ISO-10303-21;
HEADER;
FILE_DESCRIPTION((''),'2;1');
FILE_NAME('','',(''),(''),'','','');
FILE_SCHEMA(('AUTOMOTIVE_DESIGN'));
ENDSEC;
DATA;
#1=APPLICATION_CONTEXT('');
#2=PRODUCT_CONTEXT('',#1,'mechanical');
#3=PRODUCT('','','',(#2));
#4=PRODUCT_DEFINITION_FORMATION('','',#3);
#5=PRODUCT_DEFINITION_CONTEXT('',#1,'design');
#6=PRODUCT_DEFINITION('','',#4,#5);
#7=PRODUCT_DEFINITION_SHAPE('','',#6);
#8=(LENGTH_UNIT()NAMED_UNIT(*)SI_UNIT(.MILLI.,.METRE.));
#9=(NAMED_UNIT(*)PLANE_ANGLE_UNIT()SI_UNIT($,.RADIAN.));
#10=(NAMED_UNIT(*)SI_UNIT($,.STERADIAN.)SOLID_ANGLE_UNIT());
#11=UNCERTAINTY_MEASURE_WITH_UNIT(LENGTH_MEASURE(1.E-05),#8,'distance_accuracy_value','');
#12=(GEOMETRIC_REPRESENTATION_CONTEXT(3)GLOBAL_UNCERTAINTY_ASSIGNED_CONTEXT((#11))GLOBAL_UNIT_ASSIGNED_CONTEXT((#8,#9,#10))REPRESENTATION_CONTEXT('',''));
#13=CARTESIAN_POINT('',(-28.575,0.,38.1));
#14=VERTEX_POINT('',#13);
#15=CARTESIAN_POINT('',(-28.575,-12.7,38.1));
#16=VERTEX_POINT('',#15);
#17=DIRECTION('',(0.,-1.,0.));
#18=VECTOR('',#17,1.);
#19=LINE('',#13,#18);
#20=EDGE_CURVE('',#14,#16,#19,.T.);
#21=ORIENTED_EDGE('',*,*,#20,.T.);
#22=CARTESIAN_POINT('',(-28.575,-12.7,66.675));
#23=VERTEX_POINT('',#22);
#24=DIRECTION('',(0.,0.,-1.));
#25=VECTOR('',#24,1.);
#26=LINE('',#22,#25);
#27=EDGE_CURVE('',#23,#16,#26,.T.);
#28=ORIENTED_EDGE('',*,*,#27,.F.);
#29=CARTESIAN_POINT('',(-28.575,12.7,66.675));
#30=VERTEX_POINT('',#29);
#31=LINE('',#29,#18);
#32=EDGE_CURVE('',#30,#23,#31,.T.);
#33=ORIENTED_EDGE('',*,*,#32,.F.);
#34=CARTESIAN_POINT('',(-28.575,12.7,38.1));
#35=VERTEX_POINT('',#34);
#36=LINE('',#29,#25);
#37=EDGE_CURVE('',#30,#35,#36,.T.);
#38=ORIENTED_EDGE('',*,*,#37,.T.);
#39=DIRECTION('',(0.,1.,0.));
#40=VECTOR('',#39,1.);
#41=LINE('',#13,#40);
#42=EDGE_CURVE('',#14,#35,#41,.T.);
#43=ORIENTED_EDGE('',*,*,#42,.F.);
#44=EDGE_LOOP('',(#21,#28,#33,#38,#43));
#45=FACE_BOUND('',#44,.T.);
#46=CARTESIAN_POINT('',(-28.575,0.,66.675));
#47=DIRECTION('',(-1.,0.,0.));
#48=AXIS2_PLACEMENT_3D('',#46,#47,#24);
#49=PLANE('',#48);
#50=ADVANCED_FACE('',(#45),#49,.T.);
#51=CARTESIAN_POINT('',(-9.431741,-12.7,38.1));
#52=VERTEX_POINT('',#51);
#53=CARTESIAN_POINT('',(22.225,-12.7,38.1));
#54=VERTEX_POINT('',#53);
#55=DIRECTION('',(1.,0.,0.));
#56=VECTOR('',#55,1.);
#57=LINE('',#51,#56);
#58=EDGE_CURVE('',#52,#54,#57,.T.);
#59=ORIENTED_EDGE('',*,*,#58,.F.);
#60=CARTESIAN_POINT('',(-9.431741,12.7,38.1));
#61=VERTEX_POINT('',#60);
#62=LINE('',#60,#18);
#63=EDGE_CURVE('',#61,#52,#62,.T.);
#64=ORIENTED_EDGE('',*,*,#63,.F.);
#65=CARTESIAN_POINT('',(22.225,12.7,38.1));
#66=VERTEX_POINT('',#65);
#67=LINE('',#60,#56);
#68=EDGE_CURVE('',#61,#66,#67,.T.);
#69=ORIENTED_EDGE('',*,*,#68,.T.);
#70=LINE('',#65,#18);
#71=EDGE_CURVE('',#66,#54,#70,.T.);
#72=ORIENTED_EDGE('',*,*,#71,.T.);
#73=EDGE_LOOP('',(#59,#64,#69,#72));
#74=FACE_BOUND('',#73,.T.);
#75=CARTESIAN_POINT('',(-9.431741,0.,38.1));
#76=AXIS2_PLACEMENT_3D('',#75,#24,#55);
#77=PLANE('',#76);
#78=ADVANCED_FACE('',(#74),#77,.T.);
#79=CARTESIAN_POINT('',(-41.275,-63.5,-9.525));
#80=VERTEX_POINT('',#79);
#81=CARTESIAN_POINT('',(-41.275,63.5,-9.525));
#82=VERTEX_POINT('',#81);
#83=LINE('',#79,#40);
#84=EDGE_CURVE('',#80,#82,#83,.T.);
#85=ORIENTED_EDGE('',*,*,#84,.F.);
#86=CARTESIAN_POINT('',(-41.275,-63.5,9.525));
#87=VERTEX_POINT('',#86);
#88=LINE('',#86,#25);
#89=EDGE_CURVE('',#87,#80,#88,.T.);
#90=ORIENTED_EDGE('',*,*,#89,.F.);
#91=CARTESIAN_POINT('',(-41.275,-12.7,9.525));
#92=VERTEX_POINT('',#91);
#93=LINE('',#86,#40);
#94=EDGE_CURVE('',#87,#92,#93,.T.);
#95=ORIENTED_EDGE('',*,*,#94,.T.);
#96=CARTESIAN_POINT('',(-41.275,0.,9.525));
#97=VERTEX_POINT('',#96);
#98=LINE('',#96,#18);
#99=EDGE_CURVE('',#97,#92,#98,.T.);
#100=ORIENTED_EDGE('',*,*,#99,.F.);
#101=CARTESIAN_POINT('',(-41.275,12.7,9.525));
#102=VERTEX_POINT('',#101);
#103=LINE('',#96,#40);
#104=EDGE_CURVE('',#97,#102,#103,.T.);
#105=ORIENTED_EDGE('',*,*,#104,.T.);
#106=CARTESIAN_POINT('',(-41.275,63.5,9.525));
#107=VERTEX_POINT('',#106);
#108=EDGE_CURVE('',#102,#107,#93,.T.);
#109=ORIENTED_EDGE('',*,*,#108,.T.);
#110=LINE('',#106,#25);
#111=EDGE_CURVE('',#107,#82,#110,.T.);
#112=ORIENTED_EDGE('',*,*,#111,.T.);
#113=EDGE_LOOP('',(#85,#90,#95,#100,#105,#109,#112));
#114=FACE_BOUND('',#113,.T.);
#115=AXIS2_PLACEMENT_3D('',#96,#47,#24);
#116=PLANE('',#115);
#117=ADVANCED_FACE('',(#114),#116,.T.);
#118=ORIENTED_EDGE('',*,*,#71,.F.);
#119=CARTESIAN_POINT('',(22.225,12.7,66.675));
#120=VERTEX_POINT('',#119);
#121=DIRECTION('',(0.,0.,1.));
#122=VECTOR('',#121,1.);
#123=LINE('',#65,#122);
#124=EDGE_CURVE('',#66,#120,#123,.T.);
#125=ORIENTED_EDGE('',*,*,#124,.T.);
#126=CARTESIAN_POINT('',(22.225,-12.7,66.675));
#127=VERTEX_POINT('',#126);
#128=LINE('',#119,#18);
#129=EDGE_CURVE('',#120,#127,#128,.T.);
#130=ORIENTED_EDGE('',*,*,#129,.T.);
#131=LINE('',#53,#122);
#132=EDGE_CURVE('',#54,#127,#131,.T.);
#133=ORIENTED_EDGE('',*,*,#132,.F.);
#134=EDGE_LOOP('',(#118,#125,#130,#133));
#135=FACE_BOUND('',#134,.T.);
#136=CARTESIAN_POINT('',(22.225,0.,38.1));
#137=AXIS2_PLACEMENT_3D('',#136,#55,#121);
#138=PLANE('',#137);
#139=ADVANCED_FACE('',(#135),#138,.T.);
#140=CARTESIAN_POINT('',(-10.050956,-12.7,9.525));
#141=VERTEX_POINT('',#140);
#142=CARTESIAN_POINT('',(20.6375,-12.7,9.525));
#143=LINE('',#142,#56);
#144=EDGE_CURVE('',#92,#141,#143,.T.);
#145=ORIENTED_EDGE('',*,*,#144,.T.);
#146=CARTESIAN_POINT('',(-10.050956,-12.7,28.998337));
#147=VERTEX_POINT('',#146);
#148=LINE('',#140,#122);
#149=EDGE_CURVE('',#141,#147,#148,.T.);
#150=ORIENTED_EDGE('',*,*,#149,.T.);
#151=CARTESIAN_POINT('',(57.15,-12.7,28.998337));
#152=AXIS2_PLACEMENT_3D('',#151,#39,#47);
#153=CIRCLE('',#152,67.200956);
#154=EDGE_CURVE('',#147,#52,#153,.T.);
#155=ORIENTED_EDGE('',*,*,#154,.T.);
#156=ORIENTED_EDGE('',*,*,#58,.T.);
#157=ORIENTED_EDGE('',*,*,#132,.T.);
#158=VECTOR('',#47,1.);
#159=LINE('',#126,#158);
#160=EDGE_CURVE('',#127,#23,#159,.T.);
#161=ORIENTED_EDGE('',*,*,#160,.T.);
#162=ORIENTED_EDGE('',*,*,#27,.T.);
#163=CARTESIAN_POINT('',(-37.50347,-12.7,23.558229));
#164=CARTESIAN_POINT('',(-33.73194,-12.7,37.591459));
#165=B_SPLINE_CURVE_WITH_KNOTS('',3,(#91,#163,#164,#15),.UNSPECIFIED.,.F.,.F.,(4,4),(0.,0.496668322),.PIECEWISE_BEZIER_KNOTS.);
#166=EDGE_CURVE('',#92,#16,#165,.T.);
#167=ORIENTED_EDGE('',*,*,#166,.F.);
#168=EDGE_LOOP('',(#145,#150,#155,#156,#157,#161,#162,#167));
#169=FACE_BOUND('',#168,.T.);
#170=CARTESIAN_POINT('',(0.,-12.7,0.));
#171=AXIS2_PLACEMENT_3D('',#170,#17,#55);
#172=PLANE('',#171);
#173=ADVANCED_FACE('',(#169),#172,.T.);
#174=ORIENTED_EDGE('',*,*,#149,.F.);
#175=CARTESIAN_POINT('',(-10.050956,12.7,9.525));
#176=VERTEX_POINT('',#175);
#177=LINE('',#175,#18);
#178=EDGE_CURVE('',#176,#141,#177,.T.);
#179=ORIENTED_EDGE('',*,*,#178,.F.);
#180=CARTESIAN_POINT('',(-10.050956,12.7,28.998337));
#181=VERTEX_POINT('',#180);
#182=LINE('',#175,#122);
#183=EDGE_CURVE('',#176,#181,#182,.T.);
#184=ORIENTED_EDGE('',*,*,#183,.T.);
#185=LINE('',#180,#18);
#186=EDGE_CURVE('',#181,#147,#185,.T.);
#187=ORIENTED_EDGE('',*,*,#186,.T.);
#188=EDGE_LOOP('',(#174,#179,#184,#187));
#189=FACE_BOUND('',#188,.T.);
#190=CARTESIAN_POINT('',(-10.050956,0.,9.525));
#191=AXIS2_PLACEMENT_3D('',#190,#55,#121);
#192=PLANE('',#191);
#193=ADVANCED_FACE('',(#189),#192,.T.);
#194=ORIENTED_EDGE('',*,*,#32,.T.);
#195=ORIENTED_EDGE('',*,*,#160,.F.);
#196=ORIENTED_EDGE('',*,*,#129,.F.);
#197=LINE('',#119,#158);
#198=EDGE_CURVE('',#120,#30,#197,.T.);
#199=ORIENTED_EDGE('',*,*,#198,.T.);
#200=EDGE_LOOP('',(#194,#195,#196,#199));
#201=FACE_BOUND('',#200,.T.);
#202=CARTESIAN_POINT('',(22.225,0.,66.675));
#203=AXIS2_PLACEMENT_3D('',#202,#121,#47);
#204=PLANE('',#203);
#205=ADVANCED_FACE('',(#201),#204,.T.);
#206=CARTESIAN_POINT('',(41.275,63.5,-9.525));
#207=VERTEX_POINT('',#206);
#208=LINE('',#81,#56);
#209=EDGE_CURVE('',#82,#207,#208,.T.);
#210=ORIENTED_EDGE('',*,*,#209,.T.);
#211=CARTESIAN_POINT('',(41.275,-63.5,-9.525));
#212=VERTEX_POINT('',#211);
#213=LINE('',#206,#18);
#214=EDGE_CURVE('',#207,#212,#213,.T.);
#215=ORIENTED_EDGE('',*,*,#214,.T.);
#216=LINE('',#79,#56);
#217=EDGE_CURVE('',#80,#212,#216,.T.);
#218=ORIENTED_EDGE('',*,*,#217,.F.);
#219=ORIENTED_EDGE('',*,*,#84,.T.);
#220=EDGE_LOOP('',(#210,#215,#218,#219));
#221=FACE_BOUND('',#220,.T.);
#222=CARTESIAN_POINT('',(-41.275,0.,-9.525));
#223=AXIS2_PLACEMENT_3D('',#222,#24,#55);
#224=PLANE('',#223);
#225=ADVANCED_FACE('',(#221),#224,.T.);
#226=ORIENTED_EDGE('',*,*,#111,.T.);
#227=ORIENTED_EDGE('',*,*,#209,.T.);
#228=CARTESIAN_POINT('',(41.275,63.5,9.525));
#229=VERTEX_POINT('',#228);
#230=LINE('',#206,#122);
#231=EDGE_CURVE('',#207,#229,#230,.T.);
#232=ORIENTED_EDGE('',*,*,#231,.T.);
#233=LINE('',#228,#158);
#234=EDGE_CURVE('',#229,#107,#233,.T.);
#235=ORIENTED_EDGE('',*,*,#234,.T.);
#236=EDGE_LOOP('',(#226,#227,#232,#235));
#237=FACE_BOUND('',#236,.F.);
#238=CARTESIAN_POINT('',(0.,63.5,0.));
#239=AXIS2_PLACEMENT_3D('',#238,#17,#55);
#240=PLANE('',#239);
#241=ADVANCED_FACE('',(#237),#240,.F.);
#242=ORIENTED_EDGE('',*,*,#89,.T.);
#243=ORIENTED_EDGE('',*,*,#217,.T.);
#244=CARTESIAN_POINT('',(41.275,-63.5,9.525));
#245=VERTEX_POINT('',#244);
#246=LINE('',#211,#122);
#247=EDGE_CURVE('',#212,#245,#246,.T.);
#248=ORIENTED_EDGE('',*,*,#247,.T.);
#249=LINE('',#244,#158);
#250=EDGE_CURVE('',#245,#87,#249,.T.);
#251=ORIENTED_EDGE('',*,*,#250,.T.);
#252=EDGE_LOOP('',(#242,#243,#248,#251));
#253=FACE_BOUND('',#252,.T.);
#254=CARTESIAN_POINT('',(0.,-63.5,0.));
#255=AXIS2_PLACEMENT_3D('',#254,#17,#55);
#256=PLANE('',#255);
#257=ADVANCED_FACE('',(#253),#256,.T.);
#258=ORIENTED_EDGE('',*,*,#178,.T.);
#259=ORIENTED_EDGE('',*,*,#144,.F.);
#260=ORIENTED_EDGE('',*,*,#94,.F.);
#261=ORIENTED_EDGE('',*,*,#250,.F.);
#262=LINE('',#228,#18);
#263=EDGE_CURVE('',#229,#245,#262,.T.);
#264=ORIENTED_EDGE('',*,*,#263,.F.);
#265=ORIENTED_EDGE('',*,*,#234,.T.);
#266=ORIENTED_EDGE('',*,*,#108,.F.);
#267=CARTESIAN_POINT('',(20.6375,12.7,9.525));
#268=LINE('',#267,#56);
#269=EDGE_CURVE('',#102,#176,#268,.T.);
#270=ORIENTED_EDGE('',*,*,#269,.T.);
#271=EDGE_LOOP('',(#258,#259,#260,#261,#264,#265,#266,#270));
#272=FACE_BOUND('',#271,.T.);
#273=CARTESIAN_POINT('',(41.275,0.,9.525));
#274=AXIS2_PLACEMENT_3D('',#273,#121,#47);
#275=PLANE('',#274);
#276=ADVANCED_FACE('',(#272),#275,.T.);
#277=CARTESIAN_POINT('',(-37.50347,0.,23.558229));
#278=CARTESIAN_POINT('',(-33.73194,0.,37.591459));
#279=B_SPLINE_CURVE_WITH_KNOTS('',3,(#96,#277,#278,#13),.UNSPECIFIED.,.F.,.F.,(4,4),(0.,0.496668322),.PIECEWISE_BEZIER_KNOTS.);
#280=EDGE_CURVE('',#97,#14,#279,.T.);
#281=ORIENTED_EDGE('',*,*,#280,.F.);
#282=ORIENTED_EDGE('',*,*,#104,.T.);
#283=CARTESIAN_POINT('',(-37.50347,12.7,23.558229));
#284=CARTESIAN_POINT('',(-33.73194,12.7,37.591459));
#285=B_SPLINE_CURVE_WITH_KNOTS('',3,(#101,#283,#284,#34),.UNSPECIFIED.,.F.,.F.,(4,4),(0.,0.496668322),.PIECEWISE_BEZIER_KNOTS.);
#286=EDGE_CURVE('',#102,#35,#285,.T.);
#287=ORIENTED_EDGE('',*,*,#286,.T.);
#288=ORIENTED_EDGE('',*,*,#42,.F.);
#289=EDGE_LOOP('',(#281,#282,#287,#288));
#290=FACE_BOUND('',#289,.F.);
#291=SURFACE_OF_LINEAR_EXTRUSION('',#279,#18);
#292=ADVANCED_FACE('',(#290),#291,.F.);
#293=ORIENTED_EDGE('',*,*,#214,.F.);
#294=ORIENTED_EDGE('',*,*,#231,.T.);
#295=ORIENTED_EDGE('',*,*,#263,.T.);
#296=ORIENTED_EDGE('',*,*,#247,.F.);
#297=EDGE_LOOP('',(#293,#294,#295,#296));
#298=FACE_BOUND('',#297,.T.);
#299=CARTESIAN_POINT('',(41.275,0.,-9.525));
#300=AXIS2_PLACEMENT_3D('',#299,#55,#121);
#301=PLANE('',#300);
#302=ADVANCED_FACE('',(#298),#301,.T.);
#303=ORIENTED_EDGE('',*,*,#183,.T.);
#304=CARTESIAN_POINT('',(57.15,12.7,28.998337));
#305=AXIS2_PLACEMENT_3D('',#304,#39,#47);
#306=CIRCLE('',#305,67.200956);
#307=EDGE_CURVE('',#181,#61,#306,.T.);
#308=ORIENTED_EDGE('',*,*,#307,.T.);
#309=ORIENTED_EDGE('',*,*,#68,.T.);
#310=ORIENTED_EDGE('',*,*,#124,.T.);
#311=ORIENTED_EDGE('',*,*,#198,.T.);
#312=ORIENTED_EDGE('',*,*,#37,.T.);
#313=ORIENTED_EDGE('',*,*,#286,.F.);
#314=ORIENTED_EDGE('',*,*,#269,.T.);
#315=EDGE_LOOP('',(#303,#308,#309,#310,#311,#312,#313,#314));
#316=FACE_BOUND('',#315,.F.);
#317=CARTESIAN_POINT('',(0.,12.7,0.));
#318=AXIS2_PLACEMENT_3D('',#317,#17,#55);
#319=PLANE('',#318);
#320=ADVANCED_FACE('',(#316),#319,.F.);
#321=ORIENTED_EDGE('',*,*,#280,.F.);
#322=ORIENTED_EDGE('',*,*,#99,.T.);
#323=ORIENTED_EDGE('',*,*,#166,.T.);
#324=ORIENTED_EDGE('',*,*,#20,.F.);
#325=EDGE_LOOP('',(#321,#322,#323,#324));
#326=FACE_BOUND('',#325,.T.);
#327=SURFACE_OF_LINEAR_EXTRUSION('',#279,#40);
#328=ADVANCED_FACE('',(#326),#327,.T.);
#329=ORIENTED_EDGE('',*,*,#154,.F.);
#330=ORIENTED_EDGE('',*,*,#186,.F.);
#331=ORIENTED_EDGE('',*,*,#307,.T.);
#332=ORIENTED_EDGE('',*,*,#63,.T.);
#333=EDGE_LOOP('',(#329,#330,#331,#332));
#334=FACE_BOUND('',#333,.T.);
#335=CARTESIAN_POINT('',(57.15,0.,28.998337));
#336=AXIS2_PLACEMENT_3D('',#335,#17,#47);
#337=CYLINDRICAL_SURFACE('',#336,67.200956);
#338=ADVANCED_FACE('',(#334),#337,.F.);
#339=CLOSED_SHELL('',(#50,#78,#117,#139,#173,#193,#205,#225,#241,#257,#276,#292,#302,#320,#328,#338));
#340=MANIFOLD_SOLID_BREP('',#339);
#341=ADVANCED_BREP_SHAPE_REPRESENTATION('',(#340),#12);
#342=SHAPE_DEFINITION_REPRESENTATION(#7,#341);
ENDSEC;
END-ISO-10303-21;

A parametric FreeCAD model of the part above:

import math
import FreeCAD as App
import Part
import Sketcher
Q = App.Units.Quantity

doc = App.newDocument("Part")
body = doc.addObject("PartDesign::Body", "Body")

sketch1 = body.newObject("Sketcher::SketchObject", "Sketch")
sketch1.AttachmentSupport = (doc.getObject("XZ_Plane"), [""])
sketch1.MapMode = "FlatFace"
sketch1.addGeometry([
    Part.LineSegment(App.Vector(-41, -10, 0), App.Vector(41, -10, 0)),
    Part.LineSegment(App.Vector(41, -10, 0), App.Vector(41, 10, 0)),
    Part.LineSegment(App.Vector(41, 10, 0), App.Vector(-41, 10, 0)),
    Part.LineSegment(App.Vector(-41, 10, 0), App.Vector(-41, -10, 0)),
], False)
sketch1.addConstraint([
    Sketcher.Constraint("Coincident", 0, 2, 1, 1),
    Sketcher.Constraint("Coincident", 1, 2, 2, 1),
    Sketcher.Constraint("Coincident", 2, 2, 3, 1),
    Sketcher.Constraint("Coincident", 3, 2, 0, 1),
    Sketcher.Constraint("Horizontal", 0),
    Sketcher.Constraint("Vertical", 1),
    Sketcher.Constraint("Horizontal", 2),
    Sketcher.Constraint("Vertical", 3),
    Sketcher.Constraint("Symmetric", 0, 2, 2, 2, -1, 1),
    Sketcher.Constraint("DistanceX", 0, 1, 0, 2, Q("3.25 in")),
    Sketcher.Constraint("DistanceY", 1, 1, 1, 2, Q("0.75 in")),
])
pad1 = body.newObject("PartDesign::Pad", "Pad")
pad1.Profile = sketch1
pad1.Length = Q("5 in")
pad1.Midplane = True

sketch2 = body.newObject("Sketcher::SketchObject", "Sketch001")
sketch2.AttachmentSupport = (doc.getObject("XZ_Plane"), [""])
sketch2.MapMode = "FlatFace"
sketch2.addGeometry([
    Part.LineSegment(App.Vector(-41.275, -9.525, 0), App.Vector(41.275, -9.525, 0)),
    Part.LineSegment(App.Vector(41.275, -9.525, 0), App.Vector(41.275, 9.525, 0)),
    Part.LineSegment(App.Vector(41.275, 9.525, 0), App.Vector(-10.050956, 9.525, 0)),
    Part.LineSegment(App.Vector(-10.050956, 9.525, 0), App.Vector(-10.050956, 28.998337, 0)),
    Part.ArcOfCircle(Part.Circle(App.Vector(57.15, 28.998337, 0), App.Vector(0, 0, 1), 67.200956), math.radians(172.215966), math.radians(180)),
    Part.LineSegment(App.Vector(-9.431741, 38.1, 0), App.Vector(22.225, 38.1, 0)),
    Part.LineSegment(App.Vector(22.225, 38.1, 0), App.Vector(22.225, 66.675, 0)),
    Part.LineSegment(App.Vector(22.225, 66.675, 0), App.Vector(-28.575, 66.675, 0)),
    Part.LineSegment(App.Vector(-28.575, 66.675, 0), App.Vector(-28.575, 38.1, 0)),
    Part.BSplineCurve([App.Vector(-41.275, 9.525, 0), App.Vector(-37.50347, 23.558229, 0), App.Vector(-33.73194, 37.591459, 0), App.Vector(-28.575, 38.1, 0)], [4, 4], [0, 0.496668322], False, 3, [1, 1, 1, 1], False),
    Part.LineSegment(App.Vector(-41.275, 9.525, 0), App.Vector(-41.275, -9.525, 0)),
], False)
sketch2.addConstraint([
    Sketcher.Constraint("Block", 9),
    Sketcher.Constraint("Coincident", 0, 2, 1, 1),
    Sketcher.Constraint("Coincident", 1, 2, 2, 1),
    Sketcher.Constraint("Coincident", 2, 2, 3, 1),
    Sketcher.Constraint("Coincident", 3, 2, 4, 2),
    Sketcher.Constraint("Coincident", 4, 1, 5, 1),
    Sketcher.Constraint("Coincident", 5, 2, 6, 1),
    Sketcher.Constraint("Coincident", 6, 2, 7, 1),
    Sketcher.Constraint("Coincident", 7, 2, 8, 1),
    Sketcher.Constraint("Coincident", 8, 2, 9, 2),
    Sketcher.Constraint("Coincident", 9, 1, 10, 1),
    Sketcher.Constraint("Coincident", 10, 2, 0, 1),
    Sketcher.Constraint("Horizontal", 0),
    Sketcher.Constraint("Vertical", 1),
    Sketcher.Constraint("Horizontal", 2),
    Sketcher.Constraint("Vertical", 3),
    Sketcher.Constraint("Horizontal", 5),
    Sketcher.Constraint("Vertical", 6),
    Sketcher.Constraint("Horizontal", 7),
    Sketcher.Constraint("Vertical", 8),
    Sketcher.Constraint("Vertical", 10),
    Sketcher.Constraint("DistanceX", 7, 2, 7, 1, Q("2 in")),
    Sketcher.Constraint("DistanceY", 10, 2, 7, 2, Q("3 in")),
    Sketcher.Constraint("DistanceX", 0, 1, 0, 2, Q("3.25 in")),
    Sketcher.Constraint("DistanceY", 1, 1, 1, 2, Q("0.75 in")),
    Sketcher.Constraint("DistanceY", 10, 2, 10, 1, Q("0.75 in")),
    Sketcher.Constraint("DistanceY", -1, 1, 4, 1, Q("1.5 in")),
    Sketcher.Constraint("DistanceX", -1, 1, 4, 3, Q("2.25 in")),
    Sketcher.Constraint("Radius", 4, Q("67.200956 mm")),
    Sketcher.Constraint("DistanceX", 5, 1, 5, 2, Q("31.656741 mm")),
    Sketcher.Constraint("DistanceY", 3, 1, 3, 2, Q("19.473337 mm")),
])
pad2 = body.newObject("PartDesign::Pad", "Pad001")
pad2.Profile = sketch2
pad2.Length = Q("1 in")
pad2.Midplane = True

doc.recompute()
